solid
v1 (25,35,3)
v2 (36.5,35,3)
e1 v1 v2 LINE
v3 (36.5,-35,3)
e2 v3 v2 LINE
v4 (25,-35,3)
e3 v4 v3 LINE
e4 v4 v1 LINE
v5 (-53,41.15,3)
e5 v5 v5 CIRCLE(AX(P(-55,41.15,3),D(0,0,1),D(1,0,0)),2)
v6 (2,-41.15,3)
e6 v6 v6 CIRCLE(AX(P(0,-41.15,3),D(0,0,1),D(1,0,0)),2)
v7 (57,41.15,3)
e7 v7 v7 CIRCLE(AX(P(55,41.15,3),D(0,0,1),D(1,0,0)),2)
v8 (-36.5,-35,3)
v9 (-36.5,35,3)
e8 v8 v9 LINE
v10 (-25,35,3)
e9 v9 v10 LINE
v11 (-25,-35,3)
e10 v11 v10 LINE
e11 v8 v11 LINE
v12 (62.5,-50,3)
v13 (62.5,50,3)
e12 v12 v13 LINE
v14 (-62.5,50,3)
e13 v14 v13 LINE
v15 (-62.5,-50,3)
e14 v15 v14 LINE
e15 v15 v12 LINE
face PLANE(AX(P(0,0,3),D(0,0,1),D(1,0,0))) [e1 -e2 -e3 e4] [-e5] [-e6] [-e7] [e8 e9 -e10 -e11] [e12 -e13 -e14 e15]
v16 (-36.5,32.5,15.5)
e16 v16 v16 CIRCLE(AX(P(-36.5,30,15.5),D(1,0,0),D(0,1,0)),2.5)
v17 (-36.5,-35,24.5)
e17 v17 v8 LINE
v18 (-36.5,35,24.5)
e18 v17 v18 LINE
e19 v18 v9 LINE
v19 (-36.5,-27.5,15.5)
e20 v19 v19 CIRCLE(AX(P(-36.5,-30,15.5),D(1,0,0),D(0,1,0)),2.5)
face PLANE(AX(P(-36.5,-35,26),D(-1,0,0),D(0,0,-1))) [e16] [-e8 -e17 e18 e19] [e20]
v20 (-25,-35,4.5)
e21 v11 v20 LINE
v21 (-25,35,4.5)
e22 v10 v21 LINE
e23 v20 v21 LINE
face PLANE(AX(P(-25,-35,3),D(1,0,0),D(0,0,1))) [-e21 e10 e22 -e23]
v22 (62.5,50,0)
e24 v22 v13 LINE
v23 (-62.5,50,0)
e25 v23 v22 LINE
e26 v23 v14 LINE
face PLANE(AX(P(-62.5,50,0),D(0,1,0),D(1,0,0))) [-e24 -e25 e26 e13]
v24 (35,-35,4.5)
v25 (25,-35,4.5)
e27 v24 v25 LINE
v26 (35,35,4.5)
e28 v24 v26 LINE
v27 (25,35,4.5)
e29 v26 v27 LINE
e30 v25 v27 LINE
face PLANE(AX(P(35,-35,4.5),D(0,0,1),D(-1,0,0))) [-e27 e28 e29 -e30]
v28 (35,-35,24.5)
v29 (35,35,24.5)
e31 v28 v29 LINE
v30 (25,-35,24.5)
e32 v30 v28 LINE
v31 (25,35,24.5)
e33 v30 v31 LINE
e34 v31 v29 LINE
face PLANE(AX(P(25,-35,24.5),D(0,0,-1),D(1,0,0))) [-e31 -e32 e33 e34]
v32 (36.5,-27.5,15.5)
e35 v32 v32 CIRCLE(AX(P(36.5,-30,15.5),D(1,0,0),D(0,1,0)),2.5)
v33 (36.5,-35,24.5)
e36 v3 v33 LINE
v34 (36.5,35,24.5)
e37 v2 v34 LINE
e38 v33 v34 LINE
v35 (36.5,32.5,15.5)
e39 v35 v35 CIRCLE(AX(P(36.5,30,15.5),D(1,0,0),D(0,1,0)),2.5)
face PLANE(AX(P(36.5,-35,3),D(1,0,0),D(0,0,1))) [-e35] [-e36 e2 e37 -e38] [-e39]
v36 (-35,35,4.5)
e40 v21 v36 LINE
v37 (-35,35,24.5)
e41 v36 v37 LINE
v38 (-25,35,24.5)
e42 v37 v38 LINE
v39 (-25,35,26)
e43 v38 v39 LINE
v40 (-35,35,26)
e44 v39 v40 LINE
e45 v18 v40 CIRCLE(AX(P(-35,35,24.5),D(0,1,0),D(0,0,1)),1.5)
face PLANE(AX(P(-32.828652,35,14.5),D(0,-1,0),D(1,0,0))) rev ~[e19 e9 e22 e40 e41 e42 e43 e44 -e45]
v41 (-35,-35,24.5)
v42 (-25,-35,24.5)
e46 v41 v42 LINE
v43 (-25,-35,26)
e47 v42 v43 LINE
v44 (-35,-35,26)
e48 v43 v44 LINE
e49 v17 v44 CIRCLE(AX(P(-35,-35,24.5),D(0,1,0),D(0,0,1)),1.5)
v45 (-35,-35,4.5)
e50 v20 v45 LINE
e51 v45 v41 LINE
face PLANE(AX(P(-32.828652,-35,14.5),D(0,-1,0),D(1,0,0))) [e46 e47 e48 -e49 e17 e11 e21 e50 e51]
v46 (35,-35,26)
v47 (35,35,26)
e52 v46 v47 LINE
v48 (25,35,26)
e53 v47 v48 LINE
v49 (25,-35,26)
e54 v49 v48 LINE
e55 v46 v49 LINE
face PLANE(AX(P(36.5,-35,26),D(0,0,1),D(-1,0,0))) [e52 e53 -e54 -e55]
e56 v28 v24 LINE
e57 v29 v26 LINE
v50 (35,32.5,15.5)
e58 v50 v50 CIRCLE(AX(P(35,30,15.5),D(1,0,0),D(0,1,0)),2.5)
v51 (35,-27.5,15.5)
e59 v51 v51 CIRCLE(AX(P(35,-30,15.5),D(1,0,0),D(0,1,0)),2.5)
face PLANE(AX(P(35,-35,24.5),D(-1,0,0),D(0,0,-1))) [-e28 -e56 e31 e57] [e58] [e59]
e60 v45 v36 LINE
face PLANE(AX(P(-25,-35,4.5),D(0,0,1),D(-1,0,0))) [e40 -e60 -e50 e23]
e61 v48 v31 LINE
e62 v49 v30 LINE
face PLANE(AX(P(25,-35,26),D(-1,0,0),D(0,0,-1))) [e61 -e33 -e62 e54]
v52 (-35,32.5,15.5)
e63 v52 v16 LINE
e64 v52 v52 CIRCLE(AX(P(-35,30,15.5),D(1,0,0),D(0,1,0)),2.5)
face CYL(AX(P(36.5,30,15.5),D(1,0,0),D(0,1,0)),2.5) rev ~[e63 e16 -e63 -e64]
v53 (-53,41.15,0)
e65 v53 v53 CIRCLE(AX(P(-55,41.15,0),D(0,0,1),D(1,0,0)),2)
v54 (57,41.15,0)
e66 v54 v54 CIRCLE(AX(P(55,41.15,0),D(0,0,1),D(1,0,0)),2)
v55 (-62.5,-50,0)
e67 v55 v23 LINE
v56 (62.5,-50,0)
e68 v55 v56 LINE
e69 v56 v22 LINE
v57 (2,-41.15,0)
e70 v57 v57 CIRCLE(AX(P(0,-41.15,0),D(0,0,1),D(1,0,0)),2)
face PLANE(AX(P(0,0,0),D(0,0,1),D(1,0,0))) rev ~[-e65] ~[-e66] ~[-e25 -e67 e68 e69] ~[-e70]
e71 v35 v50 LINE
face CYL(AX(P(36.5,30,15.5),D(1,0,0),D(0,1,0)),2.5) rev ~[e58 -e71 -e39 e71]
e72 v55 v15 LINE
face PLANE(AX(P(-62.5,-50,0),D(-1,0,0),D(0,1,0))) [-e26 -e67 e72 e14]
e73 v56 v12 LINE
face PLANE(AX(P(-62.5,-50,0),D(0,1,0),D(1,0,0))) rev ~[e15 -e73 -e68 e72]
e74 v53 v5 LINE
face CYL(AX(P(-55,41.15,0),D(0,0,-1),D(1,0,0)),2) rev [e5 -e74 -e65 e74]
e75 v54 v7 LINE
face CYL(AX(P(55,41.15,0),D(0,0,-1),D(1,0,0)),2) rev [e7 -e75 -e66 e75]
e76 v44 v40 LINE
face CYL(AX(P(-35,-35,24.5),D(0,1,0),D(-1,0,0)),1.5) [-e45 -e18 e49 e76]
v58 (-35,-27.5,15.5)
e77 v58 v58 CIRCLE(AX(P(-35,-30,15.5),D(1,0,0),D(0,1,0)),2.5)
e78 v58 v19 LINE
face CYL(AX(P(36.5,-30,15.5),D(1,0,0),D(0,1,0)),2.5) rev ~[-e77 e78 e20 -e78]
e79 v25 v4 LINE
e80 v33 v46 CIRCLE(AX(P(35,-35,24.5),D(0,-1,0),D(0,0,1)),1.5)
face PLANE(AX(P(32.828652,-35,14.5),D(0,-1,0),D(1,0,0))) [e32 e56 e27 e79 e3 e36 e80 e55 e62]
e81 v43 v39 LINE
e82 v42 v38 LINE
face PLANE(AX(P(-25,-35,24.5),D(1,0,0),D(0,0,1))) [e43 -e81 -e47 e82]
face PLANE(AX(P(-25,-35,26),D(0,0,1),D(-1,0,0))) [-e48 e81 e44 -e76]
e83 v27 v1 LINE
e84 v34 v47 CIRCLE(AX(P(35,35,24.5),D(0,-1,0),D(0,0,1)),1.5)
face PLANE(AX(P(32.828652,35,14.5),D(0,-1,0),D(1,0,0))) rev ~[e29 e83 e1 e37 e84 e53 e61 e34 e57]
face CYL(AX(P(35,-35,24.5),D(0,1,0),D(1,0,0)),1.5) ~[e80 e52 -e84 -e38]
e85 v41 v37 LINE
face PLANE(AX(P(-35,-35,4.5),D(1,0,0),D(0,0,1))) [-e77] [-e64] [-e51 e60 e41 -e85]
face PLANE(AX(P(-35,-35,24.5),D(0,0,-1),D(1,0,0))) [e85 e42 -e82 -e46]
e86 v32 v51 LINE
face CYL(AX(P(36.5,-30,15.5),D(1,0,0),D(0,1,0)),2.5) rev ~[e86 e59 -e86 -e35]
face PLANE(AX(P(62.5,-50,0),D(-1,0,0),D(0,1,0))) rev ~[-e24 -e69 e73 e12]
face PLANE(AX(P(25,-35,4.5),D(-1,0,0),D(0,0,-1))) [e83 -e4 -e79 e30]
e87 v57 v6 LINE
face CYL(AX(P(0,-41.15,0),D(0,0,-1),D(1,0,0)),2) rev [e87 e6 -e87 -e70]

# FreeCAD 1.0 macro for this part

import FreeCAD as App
import Part
import Sketcher
from FreeCAD import Vector


def edges_at(feature, points):
    """Names of the edges that pass closest to the given points."""
    edges = feature.Shape.Edges
    near = lambda p: min(range(len(edges)), key=lambda i: edges[i].distToShape(Part.Vertex(*p))[0])
    return sorted({f"Edge{near(p) + 1}" for p in points})

doc = App.newDocument("Part")
body = doc.addObject("PartDesign::Body", "Body")

# Sketch on XY plane
sketch1 = doc.addObject("Sketcher::SketchObject", "Sketch")
body.addObject(sketch1)
sketch1.AttachmentSupport = (doc.XY_Plane, [""])
sketch1.MapMode = "FlatFace"
sketch1.addGeometry([
    Part.LineSegment(Vector(-62.5, 50, 0), Vector(-62.5, -50, 0)),  # 0
    Part.LineSegment(Vector(-62.5, -50, 0), Vector(62.5, -50, 0)),  # 1
    Part.LineSegment(Vector(62.5, -50, 0), Vector(62.5, 50, 0)),  # 2
    Part.LineSegment(Vector(62.5, 50, 0), Vector(-62.5, 50, 0)),  # 3
    Part.Circle(Vector(0, -41.1, 0), Vector(0, 0, 1), 2),  # 4
    Part.Circle(Vector(-55, 41.1, 0), Vector(0, 0, 1), 2),  # 5
    Part.Circle(Vector(55, 41.1, 0), Vector(0, 0, 1), 2),  # 6
], False)
sketch1.addConstraint([
    Sketcher.Constraint("Coincident", 0, 2, 1, 1),
    Sketcher.Constraint("Coincident", 1, 2, 2, 1),
    Sketcher.Constraint("Coincident", 2, 2, 3, 1),
    Sketcher.Constraint("Coincident", 3, 2, 0, 1),
    Sketcher.Constraint("Vertical", 0),
    Sketcher.Constraint("Horizontal", 1),
    Sketcher.Constraint("Vertical", 2),
    Sketcher.Constraint("Horizontal", 3),
    Sketcher.Constraint("Equal", 4, 5),
    Sketcher.Constraint("Equal", 5, 6),
    Sketcher.Constraint("Symmetric", 0, 2, 2, 2, -1, 1),
    Sketcher.Constraint("Symmetric", 5, 3, 6, 3, -2),
    Sketcher.Constraint("PointOnObject", 4, 3, -2),
    Sketcher.Constraint("Diameter", 4, 4.0),
    Sketcher.Constraint("DistanceX", 1, 1, 1, 2, 125.0),
    Sketcher.Constraint("DistanceY", 0, 2, 0, 1, 100.0),
    Sketcher.Constraint("DistanceX", 5, 3, -1, 1, 55.0),
    Sketcher.Constraint("DistanceY", 4, 3, 5, 3, 82.3),
    Sketcher.Constraint("DistanceY", 4, 3, -1, 1, 41.15),
])
pad1 = doc.addObject("PartDesign::Pad", "Pad")
body.addObject(pad1)
pad1.Profile = sketch1
pad1.Length = 3

# Sketch on XZ plane
sketch2 = doc.addObject("Sketcher::SketchObject", "Sketch001")
body.addObject(sketch2)
sketch2.AttachmentSupport = (doc.XZ_Plane, [""])
sketch2.MapMode = "FlatFace"
sketch2.AttachmentOffset = App.Placement(Vector(0, 0, 35), App.Rotation())
sketch2.addGeometry([
    Part.LineSegment(Vector(35, 24.5, 0), Vector(35, 4.5, 0)),  # 0
    Part.LineSegment(Vector(35, 4.5, 0), Vector(25, 4.5, 0)),  # 1
    Part.LineSegment(Vector(25, 4.5, 0), Vector(25, 3, 0)),  # 2
    Part.LineSegment(Vector(25, 3, 0), Vector(36.5, 3, 0)),  # 3
    Part.LineSegment(Vector(36.5, 3, 0), Vector(36.5, 26, 0)),  # 4
    Part.LineSegment(Vector(36.5, 26, 0), Vector(25, 26, 0)),  # 5
    Part.LineSegment(Vector(25, 26, 0), Vector(25, 24.5, 0)),  # 6
    Part.LineSegment(Vector(25, 24.5, 0), Vector(35, 24.5, 0)),  # 7
    Part.LineSegment(Vector(-36.5, 26, 0), Vector(-36.5, 3, 0)),  # 8
    Part.LineSegment(Vector(-36.5, 3, 0), Vector(-25, 3, 0)),  # 9
    Part.LineSegment(Vector(-25, 3, 0), Vector(-25, 4.5, 0)),  # 10
    Part.LineSegment(Vector(-25, 4.5, 0), Vector(-35, 4.5, 0)),  # 11
    Part.LineSegment(Vector(-35, 4.5, 0), Vector(-35, 24.5, 0)),  # 12
    Part.LineSegment(Vector(-35, 24.5, 0), Vector(-25, 24.5, 0)),  # 13
    Part.LineSegment(Vector(-25, 24.5, 0), Vector(-25, 26, 0)),  # 14
    Part.LineSegment(Vector(-25, 26, 0), Vector(-36.5, 26, 0)),  # 15
], False)
sketch2.addConstraint([
    Sketcher.Constraint("Coincident", 0, 2, 1, 1),
    Sketcher.Constraint("Coincident", 1, 2, 2, 1),
    Sketcher.Constraint("Coincident", 2, 2, 3, 1),
    Sketcher.Constraint("Coincident", 3, 2, 4, 1),
    Sketcher.Constraint("Coincident", 4, 2, 5, 1),
    Sketcher.Constraint("Coincident", 5, 2, 6, 1),
    Sketcher.Constraint("Coincident", 6, 2, 7, 1),
    Sketcher.Constraint("Coincident", 7, 2, 0, 1),
    Sketcher.Constraint("Coincident", 8, 2, 9, 1),
    Sketcher.Constraint("Coincident", 9, 2, 10, 1),
    Sketcher.Constraint("Coincident", 10, 2, 11, 1),
    Sketcher.Constraint("Coincident", 11, 2, 12, 1),
    Sketcher.Constraint("Coincident", 12, 2, 13, 1),
    Sketcher.Constraint("Coincident", 13, 2, 14, 1),
    Sketcher.Constraint("Coincident", 14, 2, 15, 1),
    Sketcher.Constraint("Coincident", 15, 2, 8, 1),
    Sketcher.Constraint("Vertical", 0),
    Sketcher.Constraint("Horizontal", 1),
    Sketcher.Constraint("Vertical", 2),
    Sketcher.Constraint("Horizontal", 3),
    Sketcher.Constraint("Vertical", 4),
    Sketcher.Constraint("Horizontal", 5),
    Sketcher.Constraint("Vertical", 6),
    Sketcher.Constraint("Horizontal", 7),
    Sketcher.Constraint("Vertical", 8),
    Sketcher.Constraint("Horizontal", 9),
    Sketcher.Constraint("Vertical", 10),
    Sketcher.Constraint("Horizontal", 11),
    Sketcher.Constraint("Vertical", 12),
    Sketcher.Constraint("Horizontal", 13),
    Sketcher.Constraint("Vertical", 14),
    Sketcher.Constraint("Horizontal", 15),
    Sketcher.Constraint("Symmetric", 3, 2, 8, 2, -2),
    Sketcher.Constraint("Symmetric", 1, 2, 10, 2, -2),
    Sketcher.Constraint("Symmetric", 7, 2, 12, 2, -2),
    Sketcher.Constraint("Symmetric", 5, 2, 14, 2, -2),
    Sketcher.Constraint("Vertical", 2, 2, 5, 2),
    Sketcher.Constraint("Equal", 2, 6),
    Sketcher.Constraint("DistanceX", 1, 2, 1, 1, 10.0),
    Sketcher.Constraint("DistanceY", 0, 2, 0, 1, 20.0),
    Sketcher.Constraint("DistanceY", 4, 1, 4, 2, 23.0),
    Sketcher.Constraint("DistanceX", 3, 1, 3, 2, 11.5),
    Sketcher.Constraint("DistanceX", -1, 1, 0, 2, 35.0),
    Sketcher.Constraint("DistanceY", -1, 1, 2, 2, 3.0),
])
pad2 = doc.addObject("PartDesign::Pad", "Pad001")
body.addObject(pad2)
pad2.Profile = sketch2
pad2.Length = 70
pad2.Reversed = True

# Sketch on YZ plane
sketch3 = doc.addObject("Sketcher::SketchObject", "Sketch002")
body.addObject(sketch3)
sketch3.AttachmentSupport = (doc.YZ_Plane, [""])
sketch3.MapMode = "FlatFace"
sketch3.AttachmentOffset = App.Placement(Vector(0, 0, 36.5), App.Rotation())
sketch3.addGeometry([
    Part.Circle(Vector(-30, 15.5, 0), Vector(0, 0, 1), 2.5),
    Part.Circle(Vector(30, 15.5, 0), Vector(0, 0, 1), 2.5),
], False)
sketch3.addConstraint([
    Sketcher.Constraint("Equal", 0, 1),
    Sketcher.Constraint("Symmetric", 0, 3, 1, 3, -2),
    Sketcher.Constraint("Diameter", 0, 5.0),
    Sketcher.Constraint("DistanceX", 0, 3, -1, 1, 30.0),
    Sketcher.Constraint("DistanceY", -1, 1, 0, 3, 15.5),
])
pocket1 = doc.addObject("PartDesign::Pocket", "Pocket")
body.addObject(pocket1)
pocket1.Profile = sketch3
pocket1.Type = "ThroughAll"
doc.recompute()

fillet = doc.addObject("PartDesign::Fillet", "Fillet")
body.addObject(fillet)
fillet.Base = (pocket1, edges_at(pocket1, [(36.5, 0, 26), (-36.5, 0, 26)]))
fillet.Radius = 1.5

doc.recompute()
